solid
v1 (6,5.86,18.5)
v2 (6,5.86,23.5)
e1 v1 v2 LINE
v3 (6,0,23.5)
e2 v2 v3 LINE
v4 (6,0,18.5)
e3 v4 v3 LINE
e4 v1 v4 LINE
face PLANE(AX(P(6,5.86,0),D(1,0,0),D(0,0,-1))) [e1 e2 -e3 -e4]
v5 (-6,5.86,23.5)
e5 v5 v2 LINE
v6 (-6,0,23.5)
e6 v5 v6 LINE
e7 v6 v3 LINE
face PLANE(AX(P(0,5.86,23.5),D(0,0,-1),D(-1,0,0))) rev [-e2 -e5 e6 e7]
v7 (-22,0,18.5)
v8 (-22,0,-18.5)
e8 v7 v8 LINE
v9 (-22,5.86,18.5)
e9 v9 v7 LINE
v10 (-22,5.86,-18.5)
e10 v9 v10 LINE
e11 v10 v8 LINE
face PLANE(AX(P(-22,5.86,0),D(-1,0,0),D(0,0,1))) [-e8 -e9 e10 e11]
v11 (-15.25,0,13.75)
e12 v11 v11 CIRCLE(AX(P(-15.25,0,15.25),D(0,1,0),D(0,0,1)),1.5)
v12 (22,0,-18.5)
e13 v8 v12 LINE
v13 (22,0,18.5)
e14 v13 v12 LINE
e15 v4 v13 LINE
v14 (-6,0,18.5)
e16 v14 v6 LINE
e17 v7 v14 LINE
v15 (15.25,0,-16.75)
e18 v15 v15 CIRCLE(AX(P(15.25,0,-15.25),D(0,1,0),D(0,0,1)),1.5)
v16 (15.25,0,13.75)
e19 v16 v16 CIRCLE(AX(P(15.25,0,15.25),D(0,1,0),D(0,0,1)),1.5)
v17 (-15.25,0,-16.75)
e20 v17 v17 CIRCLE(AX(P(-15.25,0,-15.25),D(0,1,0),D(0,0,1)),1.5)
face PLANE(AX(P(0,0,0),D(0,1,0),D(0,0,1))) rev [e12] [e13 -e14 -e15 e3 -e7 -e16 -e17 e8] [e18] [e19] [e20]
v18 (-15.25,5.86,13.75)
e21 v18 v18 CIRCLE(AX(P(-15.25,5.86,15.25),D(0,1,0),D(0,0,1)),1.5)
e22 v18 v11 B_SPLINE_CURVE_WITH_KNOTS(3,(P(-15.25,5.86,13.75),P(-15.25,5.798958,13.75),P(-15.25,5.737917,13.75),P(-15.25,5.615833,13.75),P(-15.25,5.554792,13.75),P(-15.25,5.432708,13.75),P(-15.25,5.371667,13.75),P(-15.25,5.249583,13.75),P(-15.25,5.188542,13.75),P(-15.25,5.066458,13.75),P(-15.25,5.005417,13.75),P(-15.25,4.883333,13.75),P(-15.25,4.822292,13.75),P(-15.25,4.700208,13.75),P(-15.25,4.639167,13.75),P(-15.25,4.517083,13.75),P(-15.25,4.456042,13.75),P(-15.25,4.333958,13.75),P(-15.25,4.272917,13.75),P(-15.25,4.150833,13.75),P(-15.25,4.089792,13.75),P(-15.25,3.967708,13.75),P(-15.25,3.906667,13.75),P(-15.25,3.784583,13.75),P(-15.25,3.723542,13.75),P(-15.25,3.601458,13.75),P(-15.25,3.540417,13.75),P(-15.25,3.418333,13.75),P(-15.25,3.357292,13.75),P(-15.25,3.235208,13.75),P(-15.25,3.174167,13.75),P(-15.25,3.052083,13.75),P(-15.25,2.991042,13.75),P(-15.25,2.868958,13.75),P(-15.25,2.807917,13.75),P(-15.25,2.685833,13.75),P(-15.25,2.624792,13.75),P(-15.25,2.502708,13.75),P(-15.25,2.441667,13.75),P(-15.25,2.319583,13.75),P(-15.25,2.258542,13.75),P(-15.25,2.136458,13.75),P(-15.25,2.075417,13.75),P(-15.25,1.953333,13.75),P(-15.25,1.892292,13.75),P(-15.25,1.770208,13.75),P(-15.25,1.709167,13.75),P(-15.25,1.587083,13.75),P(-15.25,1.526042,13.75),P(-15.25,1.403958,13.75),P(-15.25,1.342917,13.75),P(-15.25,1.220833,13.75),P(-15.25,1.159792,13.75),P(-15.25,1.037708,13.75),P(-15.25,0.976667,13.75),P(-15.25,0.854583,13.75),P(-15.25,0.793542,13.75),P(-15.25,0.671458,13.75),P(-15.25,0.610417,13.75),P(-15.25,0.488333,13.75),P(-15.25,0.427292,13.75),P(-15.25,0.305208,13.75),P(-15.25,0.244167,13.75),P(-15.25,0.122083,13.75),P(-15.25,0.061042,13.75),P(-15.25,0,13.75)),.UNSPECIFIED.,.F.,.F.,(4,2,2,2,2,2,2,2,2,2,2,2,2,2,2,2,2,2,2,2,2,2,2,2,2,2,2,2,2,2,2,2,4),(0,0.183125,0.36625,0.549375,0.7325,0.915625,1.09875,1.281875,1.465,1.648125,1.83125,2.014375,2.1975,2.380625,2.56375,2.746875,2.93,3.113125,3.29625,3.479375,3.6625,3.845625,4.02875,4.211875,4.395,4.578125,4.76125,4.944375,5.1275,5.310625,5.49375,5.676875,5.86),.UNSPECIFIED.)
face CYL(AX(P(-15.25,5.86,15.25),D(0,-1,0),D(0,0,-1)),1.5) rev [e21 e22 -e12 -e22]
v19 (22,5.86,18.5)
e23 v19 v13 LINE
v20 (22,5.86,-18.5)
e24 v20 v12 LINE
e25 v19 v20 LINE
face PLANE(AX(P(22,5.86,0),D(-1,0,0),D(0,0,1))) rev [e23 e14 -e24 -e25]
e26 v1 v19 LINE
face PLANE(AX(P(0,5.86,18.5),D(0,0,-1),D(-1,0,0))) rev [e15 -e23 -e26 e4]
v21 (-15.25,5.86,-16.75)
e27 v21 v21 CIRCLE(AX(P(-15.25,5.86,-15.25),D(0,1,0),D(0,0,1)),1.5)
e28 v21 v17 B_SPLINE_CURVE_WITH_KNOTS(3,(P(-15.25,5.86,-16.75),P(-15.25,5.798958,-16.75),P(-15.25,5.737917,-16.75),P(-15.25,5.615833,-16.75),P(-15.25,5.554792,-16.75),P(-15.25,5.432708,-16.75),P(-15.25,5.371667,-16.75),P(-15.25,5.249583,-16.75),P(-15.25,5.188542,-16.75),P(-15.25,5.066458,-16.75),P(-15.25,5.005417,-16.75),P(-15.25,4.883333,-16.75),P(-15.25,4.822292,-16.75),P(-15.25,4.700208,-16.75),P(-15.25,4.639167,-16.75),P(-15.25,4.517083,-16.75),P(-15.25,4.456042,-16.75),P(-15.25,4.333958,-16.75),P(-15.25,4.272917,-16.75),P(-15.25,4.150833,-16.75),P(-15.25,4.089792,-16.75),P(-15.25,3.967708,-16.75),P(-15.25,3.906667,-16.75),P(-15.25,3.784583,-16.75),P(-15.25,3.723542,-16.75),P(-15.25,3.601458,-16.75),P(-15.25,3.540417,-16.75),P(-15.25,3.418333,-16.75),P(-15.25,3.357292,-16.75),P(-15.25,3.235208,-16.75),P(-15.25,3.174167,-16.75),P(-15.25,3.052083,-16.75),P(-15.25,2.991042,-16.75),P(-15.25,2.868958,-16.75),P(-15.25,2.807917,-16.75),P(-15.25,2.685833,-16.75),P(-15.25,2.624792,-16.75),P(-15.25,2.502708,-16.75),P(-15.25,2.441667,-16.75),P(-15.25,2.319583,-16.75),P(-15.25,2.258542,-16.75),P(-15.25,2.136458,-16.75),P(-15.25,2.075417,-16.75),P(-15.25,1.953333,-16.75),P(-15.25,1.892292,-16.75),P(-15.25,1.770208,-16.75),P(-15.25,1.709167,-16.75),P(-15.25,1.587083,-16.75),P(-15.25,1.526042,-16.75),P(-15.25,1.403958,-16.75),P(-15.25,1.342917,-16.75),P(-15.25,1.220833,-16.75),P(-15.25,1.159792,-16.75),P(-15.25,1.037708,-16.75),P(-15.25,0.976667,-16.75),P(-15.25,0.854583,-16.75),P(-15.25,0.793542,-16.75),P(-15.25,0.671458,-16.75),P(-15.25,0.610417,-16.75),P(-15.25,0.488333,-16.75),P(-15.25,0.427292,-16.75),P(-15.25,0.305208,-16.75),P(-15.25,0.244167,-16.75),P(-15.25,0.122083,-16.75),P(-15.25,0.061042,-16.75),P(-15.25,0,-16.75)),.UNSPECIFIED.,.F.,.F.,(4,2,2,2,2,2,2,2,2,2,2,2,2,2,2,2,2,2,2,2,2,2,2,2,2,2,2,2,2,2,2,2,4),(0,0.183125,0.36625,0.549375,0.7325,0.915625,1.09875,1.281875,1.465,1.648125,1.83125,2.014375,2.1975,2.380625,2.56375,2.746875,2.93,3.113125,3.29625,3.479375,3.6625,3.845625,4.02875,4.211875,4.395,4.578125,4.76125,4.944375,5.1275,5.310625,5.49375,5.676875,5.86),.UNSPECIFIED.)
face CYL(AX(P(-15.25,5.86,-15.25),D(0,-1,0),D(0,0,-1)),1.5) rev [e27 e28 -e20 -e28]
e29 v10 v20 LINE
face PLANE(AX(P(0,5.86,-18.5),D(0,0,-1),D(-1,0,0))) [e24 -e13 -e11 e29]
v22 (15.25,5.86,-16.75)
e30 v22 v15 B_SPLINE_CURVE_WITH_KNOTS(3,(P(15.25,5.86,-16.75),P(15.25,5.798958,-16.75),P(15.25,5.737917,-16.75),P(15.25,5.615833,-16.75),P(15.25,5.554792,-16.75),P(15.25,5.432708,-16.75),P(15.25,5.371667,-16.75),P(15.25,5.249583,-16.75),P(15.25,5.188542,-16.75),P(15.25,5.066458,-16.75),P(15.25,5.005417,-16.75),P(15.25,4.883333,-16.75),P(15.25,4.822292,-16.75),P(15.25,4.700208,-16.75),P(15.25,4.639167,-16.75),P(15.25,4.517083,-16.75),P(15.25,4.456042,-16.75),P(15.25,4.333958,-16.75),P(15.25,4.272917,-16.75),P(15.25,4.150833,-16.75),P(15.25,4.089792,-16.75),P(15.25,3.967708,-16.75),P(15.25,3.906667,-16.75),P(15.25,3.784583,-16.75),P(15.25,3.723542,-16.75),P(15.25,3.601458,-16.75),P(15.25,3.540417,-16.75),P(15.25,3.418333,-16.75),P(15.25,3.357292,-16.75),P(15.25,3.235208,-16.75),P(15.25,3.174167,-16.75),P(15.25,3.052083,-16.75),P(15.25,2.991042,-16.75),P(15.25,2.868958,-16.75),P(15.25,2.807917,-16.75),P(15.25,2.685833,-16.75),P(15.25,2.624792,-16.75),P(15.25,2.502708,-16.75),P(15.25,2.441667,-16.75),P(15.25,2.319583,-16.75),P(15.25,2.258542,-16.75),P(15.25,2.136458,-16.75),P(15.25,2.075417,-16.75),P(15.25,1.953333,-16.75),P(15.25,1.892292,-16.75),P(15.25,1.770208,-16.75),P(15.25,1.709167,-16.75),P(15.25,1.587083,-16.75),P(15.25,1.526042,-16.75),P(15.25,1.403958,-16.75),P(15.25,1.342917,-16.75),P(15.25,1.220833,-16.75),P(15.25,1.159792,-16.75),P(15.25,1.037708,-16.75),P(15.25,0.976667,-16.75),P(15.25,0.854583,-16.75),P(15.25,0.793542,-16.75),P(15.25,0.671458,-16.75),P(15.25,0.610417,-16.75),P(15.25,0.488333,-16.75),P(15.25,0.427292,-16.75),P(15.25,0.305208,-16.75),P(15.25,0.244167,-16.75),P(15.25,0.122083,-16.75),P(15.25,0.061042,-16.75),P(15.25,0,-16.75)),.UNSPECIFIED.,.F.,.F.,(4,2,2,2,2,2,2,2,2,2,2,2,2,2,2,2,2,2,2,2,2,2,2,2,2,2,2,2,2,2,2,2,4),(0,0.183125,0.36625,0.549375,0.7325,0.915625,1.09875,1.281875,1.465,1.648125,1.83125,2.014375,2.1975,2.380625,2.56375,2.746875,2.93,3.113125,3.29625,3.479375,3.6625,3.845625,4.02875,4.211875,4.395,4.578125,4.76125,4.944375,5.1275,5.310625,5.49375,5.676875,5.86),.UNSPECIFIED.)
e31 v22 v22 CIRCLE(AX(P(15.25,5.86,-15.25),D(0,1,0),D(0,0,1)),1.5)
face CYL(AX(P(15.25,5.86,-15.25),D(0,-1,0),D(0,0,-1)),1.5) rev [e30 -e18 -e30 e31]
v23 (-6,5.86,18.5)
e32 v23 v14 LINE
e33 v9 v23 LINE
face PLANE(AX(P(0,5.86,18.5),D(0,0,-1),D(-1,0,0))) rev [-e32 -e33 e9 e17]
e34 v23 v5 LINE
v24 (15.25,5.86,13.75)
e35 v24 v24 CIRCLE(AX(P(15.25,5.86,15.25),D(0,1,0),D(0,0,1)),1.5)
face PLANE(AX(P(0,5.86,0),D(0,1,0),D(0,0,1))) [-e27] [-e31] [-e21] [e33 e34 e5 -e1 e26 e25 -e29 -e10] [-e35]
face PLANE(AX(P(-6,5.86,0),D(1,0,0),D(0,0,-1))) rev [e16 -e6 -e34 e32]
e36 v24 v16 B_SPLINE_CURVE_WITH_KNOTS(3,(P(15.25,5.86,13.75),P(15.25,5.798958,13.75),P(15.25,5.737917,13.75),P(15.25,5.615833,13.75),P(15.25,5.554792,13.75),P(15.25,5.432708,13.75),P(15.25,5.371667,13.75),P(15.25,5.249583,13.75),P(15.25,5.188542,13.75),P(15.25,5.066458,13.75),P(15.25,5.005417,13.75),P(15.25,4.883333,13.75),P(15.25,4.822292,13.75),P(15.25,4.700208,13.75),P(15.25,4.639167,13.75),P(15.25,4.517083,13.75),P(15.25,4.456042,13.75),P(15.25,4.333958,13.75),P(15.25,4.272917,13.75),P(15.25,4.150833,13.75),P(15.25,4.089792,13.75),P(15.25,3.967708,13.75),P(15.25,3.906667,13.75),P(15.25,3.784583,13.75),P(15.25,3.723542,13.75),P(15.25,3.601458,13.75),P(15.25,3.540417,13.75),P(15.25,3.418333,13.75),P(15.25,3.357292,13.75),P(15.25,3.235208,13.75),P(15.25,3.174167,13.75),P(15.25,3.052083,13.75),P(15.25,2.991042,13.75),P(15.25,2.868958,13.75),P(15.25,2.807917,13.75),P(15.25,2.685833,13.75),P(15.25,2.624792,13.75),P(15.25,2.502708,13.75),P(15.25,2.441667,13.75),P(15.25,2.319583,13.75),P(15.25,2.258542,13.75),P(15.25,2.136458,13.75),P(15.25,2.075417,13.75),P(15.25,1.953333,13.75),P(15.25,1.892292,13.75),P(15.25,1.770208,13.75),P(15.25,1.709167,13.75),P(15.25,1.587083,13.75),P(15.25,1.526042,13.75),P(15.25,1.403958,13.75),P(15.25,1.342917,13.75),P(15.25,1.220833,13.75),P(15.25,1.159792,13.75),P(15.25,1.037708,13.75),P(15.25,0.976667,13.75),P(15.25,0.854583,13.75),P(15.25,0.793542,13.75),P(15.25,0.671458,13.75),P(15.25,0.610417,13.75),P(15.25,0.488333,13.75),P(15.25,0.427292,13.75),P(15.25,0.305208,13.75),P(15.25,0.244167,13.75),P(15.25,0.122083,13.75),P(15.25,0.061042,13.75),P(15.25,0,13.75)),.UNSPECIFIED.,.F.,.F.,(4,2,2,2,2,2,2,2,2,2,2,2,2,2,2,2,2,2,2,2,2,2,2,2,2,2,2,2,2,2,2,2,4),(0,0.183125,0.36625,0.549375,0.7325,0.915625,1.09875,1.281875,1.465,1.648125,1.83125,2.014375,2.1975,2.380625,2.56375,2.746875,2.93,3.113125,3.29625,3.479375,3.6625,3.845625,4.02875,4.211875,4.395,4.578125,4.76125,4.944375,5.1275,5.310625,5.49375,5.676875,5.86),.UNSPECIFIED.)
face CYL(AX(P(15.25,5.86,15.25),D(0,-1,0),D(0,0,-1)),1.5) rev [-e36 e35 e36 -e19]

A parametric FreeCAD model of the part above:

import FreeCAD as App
import Part
import Sketcher
from FreeCAD import Vector

doc = App.newDocument("Part")
body = doc.addObject("PartDesign::Body", "Body")

sketch1 = body.newObject("Sketcher::SketchObject", "Sketch")
sketch1.AttachmentSupport = (doc.getObject("XZ_Plane"), [""])
sketch1.MapMode = "FlatFace"
sketch1.addGeometry([
    Part.LineSegment(Vector(-22, -18.5, 0), Vector(-22, 18.5, 0)),
    Part.LineSegment(Vector(-22, 18.5, 0), Vector(-6, 18.5, 0)),
    Part.LineSegment(Vector(-6, 18.5, 0), Vector(-6, 23.5, 0)),
    Part.LineSegment(Vector(-6, 23.5, 0), Vector(6, 23.5, 0)),
    Part.LineSegment(Vector(6, 23.5, 0), Vector(6, 18.5, 0)),
    Part.LineSegment(Vector(6, 18.5, 0), Vector(22, 18.5, 0)),
    Part.LineSegment(Vector(22, 18.5, 0), Vector(22, -18.5, 0)),
    Part.LineSegment(Vector(22, -18.5, 0), Vector(-22, -18.5, 0)),
    Part.Circle(Vector(-15.25, 15.25, 0), Vector(0, 0, 1), 1.5),
    Part.Circle(Vector(15.25, 15.25, 0), Vector(0, 0, 1), 1.5),
    Part.Circle(Vector(-15.25, -15.25, 0), Vector(0, 0, 1), 1.5),
    Part.Circle(Vector(15.25, -15.25, 0), Vector(0, 0, 1), 1.5),
], False)
sketch1.addConstraint([
    Sketcher.Constraint("Coincident", 0, 2, 1, 1),
    Sketcher.Constraint("Coincident", 1, 2, 2, 1),
    Sketcher.Constraint("Coincident", 2, 2, 3, 1),
    Sketcher.Constraint("Coincident", 3, 2, 4, 1),
    Sketcher.Constraint("Coincident", 4, 2, 5, 1),
    Sketcher.Constraint("Coincident", 5, 2, 6, 1),
    Sketcher.Constraint("Coincident", 6, 2, 7, 1),
    Sketcher.Constraint("Coincident", 7, 2, 0, 1),
    Sketcher.Constraint("Vertical", 0),
    Sketcher.Constraint("Horizontal", 1),
    Sketcher.Constraint("Vertical", 2),
    Sketcher.Constraint("Horizontal", 3),
    Sketcher.Constraint("Vertical", 4),
    Sketcher.Constraint("Horizontal", 5),
    Sketcher.Constraint("Vertical", 6),
    Sketcher.Constraint("Horizontal", 7),
    Sketcher.Constraint("Equal", 8, 9),
    Sketcher.Constraint("Equal", 9, 10),
    Sketcher.Constraint("Equal", 10, 11),
    Sketcher.Constraint("Symmetric", 9, 3, 10, 3, -1, 1),
    Sketcher.Constraint("Symmetric", 8, 3, 11, 3, -1, 1),
    Sketcher.Constraint("Symmetric", 0, 2, 6, 2, -1, 1),
    Sketcher.Constraint("Symmetric", 8, 3, 9, 3, -2),
    Sketcher.Constraint("Symmetric", 1, 2, 4, 2, -2),
    Sketcher.Constraint("Diameter", 8, 3.0),
    Sketcher.Constraint("DistanceX", 1, 1, 1, 2, 16.0),
    Sketcher.Constraint("DistanceX", 3, 1, 3, 2, 12.0),
    Sketcher.Constraint("DistanceY", 0, 1, 0, 2, 37.0),
    Sketcher.Constraint("DistanceY", 2, 1, 2, 2, 5.0),
    Sketcher.Constraint("DistanceX", 8, 3, 9, 3, 30.5),
    Sketcher.Constraint("DistanceY", 10, 3, 8, 3, 30.5),
])
pad1 = body.newObject("PartDesign::Pad", "Pad")
pad1.Profile = sketch1
pad1.Length = 5.86
pad1.Reversed = True

doc.recompute()
